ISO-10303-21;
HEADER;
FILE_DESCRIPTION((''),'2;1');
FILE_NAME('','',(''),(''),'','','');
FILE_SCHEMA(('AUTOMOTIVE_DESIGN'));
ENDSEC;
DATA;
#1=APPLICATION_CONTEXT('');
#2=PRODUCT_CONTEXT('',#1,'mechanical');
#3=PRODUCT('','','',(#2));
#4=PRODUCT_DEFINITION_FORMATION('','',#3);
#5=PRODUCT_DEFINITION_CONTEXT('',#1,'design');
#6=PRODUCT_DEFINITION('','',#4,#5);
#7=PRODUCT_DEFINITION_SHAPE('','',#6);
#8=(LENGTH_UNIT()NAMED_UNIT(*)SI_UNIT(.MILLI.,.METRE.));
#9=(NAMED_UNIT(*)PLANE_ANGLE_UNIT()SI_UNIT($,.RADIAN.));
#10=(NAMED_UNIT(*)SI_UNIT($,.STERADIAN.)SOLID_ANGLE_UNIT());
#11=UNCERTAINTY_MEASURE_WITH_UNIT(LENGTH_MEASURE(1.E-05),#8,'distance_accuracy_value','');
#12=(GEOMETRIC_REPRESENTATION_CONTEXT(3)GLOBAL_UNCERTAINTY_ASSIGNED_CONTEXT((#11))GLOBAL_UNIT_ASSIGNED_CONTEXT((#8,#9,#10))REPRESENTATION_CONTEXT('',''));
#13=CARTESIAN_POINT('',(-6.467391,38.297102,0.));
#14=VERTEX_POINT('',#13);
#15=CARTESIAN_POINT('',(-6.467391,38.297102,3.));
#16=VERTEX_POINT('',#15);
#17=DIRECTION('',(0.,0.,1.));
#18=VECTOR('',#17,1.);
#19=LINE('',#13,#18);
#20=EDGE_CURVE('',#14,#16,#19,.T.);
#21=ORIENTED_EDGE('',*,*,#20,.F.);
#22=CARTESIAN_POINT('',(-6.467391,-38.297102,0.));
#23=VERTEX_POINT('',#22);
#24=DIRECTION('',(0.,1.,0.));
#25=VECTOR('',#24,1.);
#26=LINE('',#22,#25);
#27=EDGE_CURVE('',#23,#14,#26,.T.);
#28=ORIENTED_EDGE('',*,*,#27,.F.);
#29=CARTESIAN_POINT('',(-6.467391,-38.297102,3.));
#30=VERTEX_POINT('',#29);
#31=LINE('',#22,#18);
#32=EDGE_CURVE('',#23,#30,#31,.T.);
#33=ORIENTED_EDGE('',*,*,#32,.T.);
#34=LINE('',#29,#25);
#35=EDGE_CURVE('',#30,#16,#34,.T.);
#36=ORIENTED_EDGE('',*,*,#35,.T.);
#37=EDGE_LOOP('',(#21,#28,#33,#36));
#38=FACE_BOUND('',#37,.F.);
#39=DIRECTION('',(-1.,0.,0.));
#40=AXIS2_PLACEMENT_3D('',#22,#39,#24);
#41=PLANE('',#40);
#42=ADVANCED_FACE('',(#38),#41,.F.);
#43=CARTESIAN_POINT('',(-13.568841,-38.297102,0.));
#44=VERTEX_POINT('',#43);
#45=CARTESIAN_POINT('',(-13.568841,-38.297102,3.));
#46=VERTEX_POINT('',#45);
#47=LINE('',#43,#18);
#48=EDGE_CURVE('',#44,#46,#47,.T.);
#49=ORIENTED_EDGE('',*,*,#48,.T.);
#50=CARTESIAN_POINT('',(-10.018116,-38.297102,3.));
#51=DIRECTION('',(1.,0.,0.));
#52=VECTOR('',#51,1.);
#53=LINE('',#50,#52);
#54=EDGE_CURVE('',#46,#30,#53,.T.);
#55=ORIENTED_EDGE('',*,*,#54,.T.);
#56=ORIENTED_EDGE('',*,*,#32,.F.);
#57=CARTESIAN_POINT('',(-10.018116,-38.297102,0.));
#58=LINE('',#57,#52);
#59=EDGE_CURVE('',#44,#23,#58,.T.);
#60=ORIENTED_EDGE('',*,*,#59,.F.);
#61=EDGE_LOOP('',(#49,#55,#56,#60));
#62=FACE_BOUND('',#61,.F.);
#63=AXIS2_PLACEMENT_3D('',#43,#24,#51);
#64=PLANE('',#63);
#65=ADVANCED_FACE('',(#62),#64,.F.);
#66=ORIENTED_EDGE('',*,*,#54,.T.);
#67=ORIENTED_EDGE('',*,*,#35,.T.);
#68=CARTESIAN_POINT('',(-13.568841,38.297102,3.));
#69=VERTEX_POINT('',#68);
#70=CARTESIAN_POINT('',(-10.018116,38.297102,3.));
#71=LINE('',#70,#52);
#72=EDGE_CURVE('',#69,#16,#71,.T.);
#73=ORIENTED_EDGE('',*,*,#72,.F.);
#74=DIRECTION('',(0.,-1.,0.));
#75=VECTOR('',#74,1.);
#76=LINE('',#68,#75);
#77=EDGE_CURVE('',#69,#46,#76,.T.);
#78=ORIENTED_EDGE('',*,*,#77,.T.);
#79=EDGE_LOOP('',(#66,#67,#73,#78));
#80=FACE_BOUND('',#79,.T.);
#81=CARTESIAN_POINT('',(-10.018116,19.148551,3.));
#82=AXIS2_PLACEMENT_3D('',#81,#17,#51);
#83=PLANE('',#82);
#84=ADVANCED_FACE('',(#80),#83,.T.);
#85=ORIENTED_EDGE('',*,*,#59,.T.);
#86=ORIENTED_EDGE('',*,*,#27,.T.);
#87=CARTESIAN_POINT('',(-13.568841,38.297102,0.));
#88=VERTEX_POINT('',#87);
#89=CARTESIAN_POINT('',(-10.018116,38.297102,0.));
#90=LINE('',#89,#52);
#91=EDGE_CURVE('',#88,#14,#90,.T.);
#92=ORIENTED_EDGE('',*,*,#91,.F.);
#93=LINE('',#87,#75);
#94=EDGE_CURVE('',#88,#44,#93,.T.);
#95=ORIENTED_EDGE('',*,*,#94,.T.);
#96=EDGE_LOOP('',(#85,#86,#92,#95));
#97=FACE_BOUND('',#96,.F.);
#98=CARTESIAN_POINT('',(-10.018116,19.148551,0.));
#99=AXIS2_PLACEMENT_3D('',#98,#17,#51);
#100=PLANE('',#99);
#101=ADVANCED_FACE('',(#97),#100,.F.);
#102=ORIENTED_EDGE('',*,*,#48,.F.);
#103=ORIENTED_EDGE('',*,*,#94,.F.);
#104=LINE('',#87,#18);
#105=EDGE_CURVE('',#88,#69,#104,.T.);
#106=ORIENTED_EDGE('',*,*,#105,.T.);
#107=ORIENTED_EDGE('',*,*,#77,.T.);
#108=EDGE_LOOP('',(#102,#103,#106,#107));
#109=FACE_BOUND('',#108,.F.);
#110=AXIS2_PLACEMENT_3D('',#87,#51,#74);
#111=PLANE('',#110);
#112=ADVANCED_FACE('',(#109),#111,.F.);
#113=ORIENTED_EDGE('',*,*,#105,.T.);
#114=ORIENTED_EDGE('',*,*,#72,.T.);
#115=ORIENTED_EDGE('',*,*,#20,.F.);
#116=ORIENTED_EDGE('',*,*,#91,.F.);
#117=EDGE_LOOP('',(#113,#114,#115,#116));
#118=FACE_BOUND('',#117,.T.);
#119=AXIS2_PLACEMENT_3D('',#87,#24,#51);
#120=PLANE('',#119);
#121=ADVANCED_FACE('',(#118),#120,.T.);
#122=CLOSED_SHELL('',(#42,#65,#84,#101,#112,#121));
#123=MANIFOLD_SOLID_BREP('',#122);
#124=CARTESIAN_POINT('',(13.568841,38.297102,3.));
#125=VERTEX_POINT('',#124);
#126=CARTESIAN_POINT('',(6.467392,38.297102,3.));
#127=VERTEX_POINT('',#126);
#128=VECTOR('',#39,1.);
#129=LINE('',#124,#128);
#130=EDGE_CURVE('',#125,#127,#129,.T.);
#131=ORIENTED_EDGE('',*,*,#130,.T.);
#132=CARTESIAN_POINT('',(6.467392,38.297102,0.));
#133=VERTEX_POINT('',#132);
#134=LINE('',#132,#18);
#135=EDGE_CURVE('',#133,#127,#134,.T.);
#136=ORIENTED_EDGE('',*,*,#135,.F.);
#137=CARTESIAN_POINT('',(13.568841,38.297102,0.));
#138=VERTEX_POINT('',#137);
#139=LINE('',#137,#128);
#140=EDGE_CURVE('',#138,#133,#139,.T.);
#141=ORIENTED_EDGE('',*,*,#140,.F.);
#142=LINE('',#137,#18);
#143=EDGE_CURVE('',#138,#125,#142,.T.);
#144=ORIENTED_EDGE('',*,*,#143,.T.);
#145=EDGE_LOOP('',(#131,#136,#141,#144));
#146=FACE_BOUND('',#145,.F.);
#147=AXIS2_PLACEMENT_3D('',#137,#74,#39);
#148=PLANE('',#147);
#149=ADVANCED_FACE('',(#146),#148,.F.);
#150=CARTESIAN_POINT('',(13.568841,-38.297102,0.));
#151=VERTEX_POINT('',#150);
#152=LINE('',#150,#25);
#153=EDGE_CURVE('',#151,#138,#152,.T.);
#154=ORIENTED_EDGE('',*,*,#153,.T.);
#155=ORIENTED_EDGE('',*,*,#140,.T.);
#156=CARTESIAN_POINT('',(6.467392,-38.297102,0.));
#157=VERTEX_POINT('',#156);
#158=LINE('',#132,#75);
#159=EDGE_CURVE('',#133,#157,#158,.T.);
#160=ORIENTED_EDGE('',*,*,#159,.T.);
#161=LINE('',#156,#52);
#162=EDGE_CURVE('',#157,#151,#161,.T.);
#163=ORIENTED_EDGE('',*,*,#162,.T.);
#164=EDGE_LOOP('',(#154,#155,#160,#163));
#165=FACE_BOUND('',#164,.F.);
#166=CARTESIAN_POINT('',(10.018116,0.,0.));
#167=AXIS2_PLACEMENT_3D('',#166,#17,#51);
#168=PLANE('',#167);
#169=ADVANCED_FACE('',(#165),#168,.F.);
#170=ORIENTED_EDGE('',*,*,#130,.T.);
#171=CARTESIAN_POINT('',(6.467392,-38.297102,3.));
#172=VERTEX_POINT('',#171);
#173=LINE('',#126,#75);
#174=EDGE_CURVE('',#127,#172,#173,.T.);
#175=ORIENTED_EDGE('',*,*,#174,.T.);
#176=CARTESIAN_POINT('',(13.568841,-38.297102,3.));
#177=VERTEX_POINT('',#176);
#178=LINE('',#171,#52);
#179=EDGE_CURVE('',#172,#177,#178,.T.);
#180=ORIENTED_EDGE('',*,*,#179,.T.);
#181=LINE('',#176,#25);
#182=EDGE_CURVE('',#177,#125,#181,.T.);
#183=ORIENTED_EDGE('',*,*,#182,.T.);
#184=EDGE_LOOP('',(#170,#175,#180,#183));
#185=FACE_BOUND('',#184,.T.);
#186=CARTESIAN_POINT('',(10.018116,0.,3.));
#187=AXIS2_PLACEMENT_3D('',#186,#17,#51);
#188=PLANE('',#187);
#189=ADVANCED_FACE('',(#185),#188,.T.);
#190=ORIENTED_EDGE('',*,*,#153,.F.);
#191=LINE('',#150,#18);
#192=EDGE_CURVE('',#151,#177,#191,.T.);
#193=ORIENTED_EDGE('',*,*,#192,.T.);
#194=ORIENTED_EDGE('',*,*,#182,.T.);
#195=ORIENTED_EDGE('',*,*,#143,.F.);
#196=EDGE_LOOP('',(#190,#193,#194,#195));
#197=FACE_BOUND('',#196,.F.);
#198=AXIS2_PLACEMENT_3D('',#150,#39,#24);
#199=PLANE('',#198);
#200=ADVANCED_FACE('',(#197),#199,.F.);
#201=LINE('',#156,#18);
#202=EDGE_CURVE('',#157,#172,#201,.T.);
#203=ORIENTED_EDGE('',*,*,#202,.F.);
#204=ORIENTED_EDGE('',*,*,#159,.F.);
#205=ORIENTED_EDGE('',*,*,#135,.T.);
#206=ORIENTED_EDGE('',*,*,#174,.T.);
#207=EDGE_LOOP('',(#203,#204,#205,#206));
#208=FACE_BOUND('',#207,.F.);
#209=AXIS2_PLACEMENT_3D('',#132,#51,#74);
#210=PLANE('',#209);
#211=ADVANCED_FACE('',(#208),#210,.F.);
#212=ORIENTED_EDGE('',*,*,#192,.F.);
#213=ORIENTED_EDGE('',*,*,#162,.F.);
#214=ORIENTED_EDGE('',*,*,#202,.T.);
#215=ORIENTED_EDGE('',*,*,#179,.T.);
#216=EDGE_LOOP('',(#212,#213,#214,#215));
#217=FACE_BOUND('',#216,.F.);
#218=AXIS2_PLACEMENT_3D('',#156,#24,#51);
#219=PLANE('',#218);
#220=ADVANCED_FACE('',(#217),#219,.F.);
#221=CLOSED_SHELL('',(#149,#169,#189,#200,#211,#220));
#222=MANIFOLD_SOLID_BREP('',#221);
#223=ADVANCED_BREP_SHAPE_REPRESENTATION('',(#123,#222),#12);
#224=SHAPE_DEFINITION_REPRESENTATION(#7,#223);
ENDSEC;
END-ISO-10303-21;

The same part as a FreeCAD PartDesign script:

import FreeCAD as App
import Part
import Sketcher

V = App.Vector
Q = App.Units.Quantity

doc = App.newDocument("Part")
body = doc.addObject("PartDesign::Body", "Body")
body.AllowCompound = True

sketch1 = body.newObject("Sketcher::SketchObject", "Sketch")
sketch1.AttachmentSupport = (doc.getObject("XY_Plane"), [""])
sketch1.MapMode = "FlatFace"
sketch1.addGeometry([
    Part.LineSegment(V(-14, 38, 0), V(-14, -38, 0)),
    Part.LineSegment(V(-14, -38, 0), V(-6, -38, 0)),
    Part.LineSegment(V(-6, -38, 0), V(-6, 38, 0)),
    Part.LineSegment(V(-6, 38, 0), V(-14, 38, 0)),
    Part.LineSegment(V(14, 38, 0), V(6, 38, 0)),
    Part.LineSegment(V(6, 38, 0), V(6, -38, 0)),
    Part.LineSegment(V(6, -38, 0), V(14, -38, 0)),
    Part.LineSegment(V(14, -38, 0), V(14, 38, 0)),
], False)
sketch1.addConstraint([
    Sketcher.Constraint("Coincident", 0, 2, 1, 1),
    Sketcher.Constraint("Coincident", 1, 2, 2, 1),
    Sketcher.Constraint("Coincident", 2, 2, 3, 1),
    Sketcher.Constraint("Coincident", 3, 2, 0, 1),
    Sketcher.Constraint("Coincident", 4, 2, 5, 1),
    Sketcher.Constraint("Coincident", 5, 2, 6, 1),
    Sketcher.Constraint("Coincident", 6, 2, 7, 1),
    Sketcher.Constraint("Coincident", 7, 2, 4, 1),
    Sketcher.Constraint("Vertical", 0),
    Sketcher.Constraint("Horizontal", 1),
    Sketcher.Constraint("Vertical", 2),
    Sketcher.Constraint("Horizontal", 3),
    Sketcher.Constraint("Horizontal", 4),
    Sketcher.Constraint("Vertical", 5),
    Sketcher.Constraint("Horizontal", 6),
    Sketcher.Constraint("Vertical", 7),
    Sketcher.Constraint("Symmetric", 1, 2, 4, 2, -1, 1),
    Sketcher.Constraint("Symmetric", 3, 2, 6, 2, -1, 1),
    Sketcher.Constraint("Horizontal", 3, 2, 4, 2),
    Sketcher.Constraint("DistanceX", 1, 1, 1, 2, Q("7.101449 mm")),
    Sketcher.Constraint("DistanceY", 0, 2, 0, 1, Q("76.594204 mm")),
    Sketcher.Constraint("DistanceX", 0, 2, -1, 1, Q("13.568841 mm")),
])
pad1 = body.newObject("PartDesign::Pad", "Pad")
pad1.Profile = sketch1
pad1.Length = 3

doc.recompute()
